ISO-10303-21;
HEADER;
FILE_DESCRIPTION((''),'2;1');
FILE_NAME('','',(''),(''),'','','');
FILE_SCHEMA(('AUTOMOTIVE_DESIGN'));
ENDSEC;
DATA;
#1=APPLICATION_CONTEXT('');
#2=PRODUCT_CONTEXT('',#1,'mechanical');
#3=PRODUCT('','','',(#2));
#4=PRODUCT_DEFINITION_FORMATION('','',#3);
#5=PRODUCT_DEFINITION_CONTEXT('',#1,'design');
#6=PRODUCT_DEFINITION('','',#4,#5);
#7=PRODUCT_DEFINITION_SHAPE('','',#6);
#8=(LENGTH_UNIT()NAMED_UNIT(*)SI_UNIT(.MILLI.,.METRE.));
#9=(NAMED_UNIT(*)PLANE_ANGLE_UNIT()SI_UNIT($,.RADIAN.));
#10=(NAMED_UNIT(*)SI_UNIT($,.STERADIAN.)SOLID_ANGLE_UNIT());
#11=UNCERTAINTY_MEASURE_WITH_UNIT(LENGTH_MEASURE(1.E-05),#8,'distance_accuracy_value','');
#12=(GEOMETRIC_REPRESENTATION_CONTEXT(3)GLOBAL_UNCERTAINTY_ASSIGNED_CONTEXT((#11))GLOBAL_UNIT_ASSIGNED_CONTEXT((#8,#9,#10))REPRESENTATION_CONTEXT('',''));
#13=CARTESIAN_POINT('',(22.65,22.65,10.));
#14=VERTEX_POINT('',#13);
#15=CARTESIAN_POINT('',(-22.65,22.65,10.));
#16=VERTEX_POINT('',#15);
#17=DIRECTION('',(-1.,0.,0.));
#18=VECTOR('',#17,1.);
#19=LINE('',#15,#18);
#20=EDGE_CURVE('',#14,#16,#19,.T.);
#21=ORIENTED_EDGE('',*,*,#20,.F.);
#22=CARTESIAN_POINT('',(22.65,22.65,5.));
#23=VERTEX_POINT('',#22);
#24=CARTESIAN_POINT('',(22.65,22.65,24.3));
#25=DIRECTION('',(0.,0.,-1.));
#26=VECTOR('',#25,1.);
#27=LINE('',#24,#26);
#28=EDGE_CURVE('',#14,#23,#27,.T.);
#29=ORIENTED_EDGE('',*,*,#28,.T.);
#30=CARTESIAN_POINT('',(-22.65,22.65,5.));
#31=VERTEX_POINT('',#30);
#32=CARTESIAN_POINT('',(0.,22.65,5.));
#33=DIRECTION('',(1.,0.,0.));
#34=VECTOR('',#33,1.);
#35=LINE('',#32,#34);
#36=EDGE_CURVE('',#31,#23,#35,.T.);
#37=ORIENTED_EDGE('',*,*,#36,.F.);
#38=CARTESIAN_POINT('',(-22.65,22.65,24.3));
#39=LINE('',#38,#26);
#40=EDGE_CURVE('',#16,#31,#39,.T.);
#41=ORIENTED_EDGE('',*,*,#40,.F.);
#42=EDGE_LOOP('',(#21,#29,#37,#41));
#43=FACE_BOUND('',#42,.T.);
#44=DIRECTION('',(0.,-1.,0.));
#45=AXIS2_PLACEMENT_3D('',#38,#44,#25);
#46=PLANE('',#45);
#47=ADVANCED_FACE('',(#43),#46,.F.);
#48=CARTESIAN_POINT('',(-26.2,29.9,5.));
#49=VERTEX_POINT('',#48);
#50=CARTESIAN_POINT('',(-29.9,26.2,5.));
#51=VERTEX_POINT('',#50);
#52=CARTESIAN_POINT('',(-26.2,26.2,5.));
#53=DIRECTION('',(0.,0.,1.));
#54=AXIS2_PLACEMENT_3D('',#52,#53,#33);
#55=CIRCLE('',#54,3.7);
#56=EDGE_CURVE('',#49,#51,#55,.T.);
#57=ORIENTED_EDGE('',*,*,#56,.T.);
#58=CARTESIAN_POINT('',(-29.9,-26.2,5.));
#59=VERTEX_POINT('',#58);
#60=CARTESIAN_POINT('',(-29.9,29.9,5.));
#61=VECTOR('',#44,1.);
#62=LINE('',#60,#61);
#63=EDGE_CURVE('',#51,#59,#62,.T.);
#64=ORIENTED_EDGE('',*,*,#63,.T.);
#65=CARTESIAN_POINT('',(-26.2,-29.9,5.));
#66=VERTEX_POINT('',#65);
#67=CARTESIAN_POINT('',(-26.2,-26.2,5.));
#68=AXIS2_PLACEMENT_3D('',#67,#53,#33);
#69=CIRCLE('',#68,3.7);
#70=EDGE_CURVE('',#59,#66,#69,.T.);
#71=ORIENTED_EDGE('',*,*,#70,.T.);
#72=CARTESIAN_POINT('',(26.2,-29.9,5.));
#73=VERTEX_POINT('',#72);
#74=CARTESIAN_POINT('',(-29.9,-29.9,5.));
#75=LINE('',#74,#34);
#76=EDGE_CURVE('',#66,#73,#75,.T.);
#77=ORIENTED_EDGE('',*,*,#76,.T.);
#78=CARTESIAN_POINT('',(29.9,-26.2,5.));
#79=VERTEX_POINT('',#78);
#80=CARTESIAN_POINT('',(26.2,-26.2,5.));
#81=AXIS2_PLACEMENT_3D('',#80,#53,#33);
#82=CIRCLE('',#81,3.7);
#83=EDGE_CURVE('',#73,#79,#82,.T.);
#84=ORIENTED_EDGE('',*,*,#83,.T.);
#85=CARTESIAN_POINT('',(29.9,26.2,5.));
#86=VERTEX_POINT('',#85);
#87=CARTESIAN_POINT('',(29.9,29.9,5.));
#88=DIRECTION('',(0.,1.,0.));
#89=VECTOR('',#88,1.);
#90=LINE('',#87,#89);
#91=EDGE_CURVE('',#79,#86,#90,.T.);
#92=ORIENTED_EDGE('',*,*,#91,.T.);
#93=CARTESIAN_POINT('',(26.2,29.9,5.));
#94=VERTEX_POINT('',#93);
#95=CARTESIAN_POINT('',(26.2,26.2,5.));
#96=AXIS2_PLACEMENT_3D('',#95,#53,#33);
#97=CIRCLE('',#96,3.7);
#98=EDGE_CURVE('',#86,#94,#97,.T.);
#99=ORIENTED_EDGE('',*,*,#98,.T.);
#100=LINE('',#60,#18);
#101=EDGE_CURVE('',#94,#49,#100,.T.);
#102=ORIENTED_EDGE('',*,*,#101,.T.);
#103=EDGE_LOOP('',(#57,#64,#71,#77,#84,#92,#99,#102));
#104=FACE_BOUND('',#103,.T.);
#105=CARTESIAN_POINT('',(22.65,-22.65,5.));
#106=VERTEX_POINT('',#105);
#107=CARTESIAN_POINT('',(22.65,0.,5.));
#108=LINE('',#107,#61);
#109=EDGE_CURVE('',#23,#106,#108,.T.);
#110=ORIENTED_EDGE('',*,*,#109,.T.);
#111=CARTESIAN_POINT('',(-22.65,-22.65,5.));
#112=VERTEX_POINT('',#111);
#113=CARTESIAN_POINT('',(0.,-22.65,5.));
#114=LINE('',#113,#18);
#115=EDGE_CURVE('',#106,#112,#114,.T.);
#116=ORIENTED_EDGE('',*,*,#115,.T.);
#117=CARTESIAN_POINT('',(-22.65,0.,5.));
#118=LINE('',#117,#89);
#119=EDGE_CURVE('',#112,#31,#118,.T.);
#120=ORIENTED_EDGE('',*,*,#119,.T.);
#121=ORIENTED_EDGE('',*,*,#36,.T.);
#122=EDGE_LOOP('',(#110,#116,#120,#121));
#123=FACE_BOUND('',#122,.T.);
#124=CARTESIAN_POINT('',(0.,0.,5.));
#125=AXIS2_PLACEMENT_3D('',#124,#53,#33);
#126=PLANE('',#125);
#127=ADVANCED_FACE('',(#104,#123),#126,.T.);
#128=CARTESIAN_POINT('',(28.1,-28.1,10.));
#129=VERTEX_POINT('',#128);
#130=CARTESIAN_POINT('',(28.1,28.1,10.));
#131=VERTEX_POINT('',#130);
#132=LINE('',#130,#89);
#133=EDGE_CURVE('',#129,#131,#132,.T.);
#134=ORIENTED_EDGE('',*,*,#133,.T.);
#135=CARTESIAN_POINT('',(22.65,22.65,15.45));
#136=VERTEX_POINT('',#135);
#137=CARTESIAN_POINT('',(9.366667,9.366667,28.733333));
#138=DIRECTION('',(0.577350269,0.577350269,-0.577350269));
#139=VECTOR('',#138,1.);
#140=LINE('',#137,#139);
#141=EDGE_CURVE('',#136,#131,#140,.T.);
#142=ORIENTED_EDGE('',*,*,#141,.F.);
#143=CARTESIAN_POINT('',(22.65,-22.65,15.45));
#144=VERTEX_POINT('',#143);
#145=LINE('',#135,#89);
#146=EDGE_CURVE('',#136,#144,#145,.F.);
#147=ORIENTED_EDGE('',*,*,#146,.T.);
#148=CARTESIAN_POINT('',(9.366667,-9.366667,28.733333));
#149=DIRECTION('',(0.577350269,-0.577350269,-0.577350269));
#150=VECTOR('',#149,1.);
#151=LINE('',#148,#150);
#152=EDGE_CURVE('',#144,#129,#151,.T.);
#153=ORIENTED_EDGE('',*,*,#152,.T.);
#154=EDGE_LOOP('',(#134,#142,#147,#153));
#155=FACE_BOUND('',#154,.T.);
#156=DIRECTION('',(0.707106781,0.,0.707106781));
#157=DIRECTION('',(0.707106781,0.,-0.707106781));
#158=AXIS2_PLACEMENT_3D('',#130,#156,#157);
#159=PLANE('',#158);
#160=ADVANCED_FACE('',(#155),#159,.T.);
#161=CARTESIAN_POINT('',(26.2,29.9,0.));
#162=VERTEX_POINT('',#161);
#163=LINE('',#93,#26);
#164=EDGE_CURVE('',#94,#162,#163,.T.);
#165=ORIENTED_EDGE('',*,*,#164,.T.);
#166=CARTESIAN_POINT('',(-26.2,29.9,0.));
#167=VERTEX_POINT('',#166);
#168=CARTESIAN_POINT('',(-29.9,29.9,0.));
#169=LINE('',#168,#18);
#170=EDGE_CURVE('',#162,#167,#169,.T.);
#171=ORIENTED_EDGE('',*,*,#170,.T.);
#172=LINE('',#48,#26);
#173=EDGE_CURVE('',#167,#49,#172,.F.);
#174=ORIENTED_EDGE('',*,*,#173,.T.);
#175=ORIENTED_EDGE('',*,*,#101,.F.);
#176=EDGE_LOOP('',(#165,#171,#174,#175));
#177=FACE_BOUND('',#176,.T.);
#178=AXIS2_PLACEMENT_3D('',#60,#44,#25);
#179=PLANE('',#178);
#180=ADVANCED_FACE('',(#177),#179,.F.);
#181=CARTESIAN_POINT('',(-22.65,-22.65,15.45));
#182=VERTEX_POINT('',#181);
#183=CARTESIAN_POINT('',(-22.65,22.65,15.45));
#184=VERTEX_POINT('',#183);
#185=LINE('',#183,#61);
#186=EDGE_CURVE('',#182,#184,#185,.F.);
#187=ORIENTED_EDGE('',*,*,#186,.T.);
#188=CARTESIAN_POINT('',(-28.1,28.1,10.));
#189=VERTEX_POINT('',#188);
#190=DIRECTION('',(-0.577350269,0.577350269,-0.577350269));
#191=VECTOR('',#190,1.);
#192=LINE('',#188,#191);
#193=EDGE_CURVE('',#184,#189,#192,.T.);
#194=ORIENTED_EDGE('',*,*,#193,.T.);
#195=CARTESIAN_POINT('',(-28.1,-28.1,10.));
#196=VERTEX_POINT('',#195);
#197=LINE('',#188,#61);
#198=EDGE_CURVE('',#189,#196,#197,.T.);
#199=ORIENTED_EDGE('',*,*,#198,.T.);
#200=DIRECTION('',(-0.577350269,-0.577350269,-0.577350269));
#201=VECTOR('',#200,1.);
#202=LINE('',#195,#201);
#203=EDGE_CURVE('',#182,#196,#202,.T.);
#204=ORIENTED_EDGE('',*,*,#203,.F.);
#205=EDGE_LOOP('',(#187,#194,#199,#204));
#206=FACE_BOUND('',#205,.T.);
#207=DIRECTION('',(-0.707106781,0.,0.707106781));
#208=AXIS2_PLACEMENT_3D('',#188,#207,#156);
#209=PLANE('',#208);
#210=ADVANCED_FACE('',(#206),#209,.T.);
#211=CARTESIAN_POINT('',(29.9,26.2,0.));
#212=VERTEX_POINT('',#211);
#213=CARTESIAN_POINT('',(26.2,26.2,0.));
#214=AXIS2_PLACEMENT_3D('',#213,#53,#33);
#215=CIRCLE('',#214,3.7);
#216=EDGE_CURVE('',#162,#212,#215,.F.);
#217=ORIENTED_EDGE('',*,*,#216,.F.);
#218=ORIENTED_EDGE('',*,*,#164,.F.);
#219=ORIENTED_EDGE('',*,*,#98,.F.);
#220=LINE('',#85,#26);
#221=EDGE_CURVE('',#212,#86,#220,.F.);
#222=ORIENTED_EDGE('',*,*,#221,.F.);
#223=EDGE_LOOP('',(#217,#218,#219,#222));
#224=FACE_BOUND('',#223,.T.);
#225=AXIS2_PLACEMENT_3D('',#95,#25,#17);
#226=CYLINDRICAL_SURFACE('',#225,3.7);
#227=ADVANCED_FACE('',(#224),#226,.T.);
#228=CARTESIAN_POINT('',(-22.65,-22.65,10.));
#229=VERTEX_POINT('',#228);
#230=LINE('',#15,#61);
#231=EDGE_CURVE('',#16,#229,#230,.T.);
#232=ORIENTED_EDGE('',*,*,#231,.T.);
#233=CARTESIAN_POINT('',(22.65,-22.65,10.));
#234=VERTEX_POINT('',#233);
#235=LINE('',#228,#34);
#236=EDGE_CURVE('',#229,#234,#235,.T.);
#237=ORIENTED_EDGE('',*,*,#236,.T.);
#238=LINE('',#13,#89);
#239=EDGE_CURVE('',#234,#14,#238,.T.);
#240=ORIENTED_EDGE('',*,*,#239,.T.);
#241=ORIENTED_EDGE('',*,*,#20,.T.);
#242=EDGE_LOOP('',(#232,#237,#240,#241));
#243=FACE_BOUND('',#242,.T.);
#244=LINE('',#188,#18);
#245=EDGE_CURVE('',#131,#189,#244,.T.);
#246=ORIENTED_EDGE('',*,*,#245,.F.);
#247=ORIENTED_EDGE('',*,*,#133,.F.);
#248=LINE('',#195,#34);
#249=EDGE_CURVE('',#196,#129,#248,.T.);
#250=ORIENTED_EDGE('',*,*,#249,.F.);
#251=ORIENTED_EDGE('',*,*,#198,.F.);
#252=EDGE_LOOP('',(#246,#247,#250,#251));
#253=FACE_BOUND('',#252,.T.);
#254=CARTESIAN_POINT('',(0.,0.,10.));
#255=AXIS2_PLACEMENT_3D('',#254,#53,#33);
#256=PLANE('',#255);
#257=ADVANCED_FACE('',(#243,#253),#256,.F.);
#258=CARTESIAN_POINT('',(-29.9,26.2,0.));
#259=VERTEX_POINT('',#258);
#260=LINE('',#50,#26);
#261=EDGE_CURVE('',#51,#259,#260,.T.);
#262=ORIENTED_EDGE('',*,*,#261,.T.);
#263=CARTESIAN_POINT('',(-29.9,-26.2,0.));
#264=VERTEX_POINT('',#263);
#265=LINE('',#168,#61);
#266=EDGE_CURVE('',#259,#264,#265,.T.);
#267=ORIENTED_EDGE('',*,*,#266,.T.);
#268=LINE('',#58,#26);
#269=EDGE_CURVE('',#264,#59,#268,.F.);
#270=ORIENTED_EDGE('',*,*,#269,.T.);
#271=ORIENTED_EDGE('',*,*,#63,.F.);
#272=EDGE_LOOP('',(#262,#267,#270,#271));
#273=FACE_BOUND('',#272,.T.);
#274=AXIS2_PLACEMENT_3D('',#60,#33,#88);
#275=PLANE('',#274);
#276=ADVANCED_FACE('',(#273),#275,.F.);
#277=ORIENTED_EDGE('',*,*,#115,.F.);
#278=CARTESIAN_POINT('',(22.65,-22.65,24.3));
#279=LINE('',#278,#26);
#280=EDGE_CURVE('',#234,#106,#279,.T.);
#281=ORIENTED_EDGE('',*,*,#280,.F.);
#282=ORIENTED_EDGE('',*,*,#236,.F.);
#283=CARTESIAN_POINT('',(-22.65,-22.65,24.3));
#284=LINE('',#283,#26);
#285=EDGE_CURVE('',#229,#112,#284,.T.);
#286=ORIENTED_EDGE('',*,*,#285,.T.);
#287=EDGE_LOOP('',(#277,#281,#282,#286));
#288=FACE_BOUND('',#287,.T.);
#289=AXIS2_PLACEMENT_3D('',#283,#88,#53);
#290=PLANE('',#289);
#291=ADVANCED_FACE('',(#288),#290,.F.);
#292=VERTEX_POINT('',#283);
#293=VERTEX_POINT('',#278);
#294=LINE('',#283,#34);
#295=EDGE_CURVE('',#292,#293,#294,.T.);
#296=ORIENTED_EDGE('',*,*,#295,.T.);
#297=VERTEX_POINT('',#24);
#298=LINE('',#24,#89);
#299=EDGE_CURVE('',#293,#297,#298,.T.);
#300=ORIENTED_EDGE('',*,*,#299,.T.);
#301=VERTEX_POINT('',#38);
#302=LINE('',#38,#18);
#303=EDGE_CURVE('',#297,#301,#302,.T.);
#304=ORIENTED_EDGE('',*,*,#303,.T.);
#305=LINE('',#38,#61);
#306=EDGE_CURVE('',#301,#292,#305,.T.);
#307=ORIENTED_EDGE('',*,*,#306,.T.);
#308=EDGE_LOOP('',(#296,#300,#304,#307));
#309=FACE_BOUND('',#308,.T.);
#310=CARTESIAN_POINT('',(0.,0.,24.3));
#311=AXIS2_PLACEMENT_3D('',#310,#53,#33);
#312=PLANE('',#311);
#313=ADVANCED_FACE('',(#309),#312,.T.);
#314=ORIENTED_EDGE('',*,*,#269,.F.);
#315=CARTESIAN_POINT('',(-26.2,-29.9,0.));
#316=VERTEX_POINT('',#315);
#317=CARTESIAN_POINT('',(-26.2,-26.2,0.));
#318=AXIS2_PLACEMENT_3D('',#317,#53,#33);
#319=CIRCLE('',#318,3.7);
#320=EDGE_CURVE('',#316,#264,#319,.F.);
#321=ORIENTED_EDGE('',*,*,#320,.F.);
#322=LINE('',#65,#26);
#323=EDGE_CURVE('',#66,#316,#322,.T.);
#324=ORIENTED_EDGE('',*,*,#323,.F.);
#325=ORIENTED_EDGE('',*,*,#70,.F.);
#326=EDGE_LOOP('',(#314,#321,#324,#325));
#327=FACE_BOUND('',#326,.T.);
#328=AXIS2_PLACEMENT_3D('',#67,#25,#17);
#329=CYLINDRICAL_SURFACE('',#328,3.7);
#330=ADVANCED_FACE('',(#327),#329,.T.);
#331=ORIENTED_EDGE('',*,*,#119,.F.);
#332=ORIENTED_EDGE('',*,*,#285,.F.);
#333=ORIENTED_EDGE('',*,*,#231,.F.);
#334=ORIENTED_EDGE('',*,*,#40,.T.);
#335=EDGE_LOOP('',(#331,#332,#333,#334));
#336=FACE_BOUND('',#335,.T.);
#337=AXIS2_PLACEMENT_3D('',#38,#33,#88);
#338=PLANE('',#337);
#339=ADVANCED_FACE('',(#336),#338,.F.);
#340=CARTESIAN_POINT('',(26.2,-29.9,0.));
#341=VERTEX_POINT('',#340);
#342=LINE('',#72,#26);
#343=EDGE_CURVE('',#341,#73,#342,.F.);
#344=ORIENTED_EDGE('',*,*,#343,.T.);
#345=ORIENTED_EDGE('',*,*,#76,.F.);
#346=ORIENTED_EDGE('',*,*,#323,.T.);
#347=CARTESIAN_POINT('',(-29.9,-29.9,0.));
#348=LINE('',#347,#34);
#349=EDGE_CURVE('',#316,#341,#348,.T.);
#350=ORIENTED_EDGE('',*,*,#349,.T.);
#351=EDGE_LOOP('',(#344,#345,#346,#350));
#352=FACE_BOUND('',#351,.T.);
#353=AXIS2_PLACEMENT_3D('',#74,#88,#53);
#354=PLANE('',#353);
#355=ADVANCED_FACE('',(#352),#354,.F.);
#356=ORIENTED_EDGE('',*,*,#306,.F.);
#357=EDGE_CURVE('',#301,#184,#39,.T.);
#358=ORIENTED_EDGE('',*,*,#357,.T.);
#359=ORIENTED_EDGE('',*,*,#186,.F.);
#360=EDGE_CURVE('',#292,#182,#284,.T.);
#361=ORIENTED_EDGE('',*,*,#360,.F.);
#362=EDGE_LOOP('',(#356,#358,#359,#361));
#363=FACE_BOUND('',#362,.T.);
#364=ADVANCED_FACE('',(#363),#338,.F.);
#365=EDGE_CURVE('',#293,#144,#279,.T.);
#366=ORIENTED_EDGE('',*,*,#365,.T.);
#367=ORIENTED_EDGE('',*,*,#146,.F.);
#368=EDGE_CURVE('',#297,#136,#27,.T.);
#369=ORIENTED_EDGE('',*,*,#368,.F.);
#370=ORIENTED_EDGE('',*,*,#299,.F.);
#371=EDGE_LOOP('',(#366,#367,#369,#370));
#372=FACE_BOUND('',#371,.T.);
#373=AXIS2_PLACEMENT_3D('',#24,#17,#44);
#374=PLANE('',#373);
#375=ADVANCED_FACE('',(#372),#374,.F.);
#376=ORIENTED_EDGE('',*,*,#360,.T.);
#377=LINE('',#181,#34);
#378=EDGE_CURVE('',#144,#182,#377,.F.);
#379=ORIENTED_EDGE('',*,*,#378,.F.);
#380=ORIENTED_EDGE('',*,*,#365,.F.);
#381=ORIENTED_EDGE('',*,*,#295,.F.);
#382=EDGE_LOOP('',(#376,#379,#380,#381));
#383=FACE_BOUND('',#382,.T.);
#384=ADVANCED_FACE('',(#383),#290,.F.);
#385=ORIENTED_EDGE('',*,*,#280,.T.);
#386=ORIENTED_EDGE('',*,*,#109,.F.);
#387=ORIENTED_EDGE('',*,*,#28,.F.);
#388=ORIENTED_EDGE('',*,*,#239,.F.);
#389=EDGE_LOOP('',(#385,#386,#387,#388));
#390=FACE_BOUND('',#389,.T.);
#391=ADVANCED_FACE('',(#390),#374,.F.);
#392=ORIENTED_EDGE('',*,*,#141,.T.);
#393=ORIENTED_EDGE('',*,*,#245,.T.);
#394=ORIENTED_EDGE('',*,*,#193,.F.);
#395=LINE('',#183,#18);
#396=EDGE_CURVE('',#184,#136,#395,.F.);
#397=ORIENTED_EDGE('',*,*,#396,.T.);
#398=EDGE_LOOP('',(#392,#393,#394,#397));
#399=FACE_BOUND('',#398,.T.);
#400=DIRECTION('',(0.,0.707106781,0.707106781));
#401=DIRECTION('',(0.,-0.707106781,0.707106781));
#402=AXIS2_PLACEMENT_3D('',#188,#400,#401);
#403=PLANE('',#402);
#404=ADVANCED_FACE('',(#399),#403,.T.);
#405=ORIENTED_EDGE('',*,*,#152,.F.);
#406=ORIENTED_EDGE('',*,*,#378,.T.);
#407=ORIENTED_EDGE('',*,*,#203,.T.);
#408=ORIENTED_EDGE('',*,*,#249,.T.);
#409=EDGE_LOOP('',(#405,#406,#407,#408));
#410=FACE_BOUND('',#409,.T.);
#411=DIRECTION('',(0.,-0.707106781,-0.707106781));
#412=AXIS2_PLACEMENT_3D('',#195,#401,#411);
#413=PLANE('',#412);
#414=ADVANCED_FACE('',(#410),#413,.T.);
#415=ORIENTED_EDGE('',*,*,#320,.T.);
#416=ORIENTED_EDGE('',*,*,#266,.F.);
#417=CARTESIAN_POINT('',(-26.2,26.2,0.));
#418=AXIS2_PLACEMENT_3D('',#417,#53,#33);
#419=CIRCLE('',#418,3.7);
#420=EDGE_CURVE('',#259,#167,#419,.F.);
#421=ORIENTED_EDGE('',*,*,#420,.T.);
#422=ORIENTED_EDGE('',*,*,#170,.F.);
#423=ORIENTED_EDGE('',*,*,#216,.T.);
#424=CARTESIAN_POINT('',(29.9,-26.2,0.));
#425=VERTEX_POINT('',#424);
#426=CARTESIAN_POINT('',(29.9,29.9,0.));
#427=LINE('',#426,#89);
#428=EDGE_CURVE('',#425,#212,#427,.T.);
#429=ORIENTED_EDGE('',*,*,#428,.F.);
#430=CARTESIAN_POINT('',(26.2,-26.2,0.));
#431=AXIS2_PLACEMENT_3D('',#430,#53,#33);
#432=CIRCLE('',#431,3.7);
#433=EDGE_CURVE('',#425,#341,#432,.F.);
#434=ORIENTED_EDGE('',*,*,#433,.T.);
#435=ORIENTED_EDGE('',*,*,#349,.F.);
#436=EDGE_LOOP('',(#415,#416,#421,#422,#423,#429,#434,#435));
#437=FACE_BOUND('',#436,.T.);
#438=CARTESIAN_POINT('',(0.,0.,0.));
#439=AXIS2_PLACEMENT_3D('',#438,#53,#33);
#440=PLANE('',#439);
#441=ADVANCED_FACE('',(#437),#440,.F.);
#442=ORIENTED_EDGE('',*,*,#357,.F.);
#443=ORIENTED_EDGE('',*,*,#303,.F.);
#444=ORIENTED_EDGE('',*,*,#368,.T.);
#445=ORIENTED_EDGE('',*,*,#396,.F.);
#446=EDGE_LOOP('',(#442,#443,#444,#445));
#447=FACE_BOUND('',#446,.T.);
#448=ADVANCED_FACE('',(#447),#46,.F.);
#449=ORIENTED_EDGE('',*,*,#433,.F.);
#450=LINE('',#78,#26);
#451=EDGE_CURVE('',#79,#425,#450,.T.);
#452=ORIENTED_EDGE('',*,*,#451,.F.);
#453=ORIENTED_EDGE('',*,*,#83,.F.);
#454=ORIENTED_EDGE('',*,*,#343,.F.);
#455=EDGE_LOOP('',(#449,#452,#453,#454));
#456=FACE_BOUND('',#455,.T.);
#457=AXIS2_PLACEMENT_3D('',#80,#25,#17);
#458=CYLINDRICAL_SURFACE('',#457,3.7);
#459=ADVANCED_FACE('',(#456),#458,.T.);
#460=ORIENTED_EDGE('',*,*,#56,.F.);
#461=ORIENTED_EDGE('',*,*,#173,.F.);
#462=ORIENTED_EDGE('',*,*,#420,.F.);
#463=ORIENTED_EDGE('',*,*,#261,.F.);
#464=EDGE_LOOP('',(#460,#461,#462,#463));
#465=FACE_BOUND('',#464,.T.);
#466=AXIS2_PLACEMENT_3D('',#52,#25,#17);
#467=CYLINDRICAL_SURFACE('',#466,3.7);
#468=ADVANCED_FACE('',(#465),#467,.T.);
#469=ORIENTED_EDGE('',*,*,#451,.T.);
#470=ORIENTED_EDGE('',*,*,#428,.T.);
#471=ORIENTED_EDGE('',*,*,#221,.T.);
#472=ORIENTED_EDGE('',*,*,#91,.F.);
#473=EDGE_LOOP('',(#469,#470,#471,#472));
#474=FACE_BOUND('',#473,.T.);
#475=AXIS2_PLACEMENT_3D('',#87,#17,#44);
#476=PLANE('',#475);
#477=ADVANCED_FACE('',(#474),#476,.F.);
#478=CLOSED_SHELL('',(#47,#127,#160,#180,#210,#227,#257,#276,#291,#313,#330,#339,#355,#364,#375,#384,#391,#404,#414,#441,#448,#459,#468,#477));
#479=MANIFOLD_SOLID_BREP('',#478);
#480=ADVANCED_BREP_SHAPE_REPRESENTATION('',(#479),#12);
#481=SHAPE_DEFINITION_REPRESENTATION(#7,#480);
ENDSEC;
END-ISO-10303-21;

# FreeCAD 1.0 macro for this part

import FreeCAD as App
import Part
import Sketcher
from FreeCAD import Vector
Q = App.Units.Quantity


def edges_at(feature, points):
    """Names of the edges that pass closest to the given points."""
    edges = feature.Shape.Edges
    near = lambda p: min(range(len(edges)), key=lambda i: edges[i].distToShape(Part.Vertex(*p))[0])
    return sorted({f"Edge{near(p) + 1}" for p in points})

doc = App.newDocument("Part")
body = doc.addObject("PartDesign::Body", "Body")

sketch1 = doc.addObject("Sketcher::SketchObject", "Sketch")
body.addObject(sketch1)
sketch1.AttachmentSupport = (doc.XY_Plane, [""])
sketch1.MapMode = "FlatFace"
sketch1.addGeometry([
    Part.LineSegment(Vector(-30, 30, 0), Vector(-30, -30, 0)),
    Part.LineSegment(Vector(-30, -30, 0), Vector(30, -30, 0)),
    Part.LineSegment(Vector(30, -30, 0), Vector(30, 30, 0)),
    Part.LineSegment(Vector(30, 30, 0), Vector(-30, 30, 0)),
], False)
sketch1.addConstraint([
    Sketcher.Constraint("Coincident", 0, 2, 1, 1),
    Sketcher.Constraint("Coincident", 1, 2, 2, 1),
    Sketcher.Constraint("Coincident", 2, 2, 3, 1),
    Sketcher.Constraint("Coincident", 3, 2, 0, 1),
    Sketcher.Constraint("Vertical", 0),
    Sketcher.Constraint("Horizontal", 1),
    Sketcher.Constraint("Vertical", 2),
    Sketcher.Constraint("Horizontal", 3),
    Sketcher.Constraint("Symmetric", 0, 2, 2, 2, -1, 1),
    Sketcher.Constraint("Equal", 3, 0),
    Sketcher.Constraint("DistanceX", 1, 1, 1, 2, Q("59.8 mm")),
])
pad1 = doc.addObject("PartDesign::Pad", "Pad")
body.addObject(pad1)
pad1.Profile = sketch1
pad1.Length = 5

sketch2 = doc.addObject("Sketcher::SketchObject", "Sketch001")
body.addObject(sketch2)
sketch2.AttachmentSupport = (doc.XY_Plane, [""])
sketch2.MapMode = "FlatFace"
sketch2.addGeometry([
    Part.LineSegment(Vector(-23, 23, 0), Vector(-23, -23, 0)),
    Part.LineSegment(Vector(-23, -23, 0), Vector(23, -23, 0)),
    Part.LineSegment(Vector(23, -23, 0), Vector(23, 23, 0)),
    Part.LineSegment(Vector(23, 23, 0), Vector(-23, 23, 0)),
], False)
sketch2.addConstraint([
    Sketcher.Constraint("Coincident", 0, 2, 1, 1),
    Sketcher.Constraint("Coincident", 1, 2, 2, 1),
    Sketcher.Constraint("Coincident", 2, 2, 3, 1),
    Sketcher.Constraint("Coincident", 3, 2, 0, 1),
    Sketcher.Constraint("Vertical", 0),
    Sketcher.Constraint("Horizontal", 1),
    Sketcher.Constraint("Vertical", 2),
    Sketcher.Constraint("Horizontal", 3),
    Sketcher.Constraint("Symmetric", 0, 2, 2, 2, -1, 1),
    Sketcher.Constraint("Equal", 3, 0),
    Sketcher.Constraint("DistanceX", 1, 1, 1, 2, Q("45.3 mm")),
])
pad2 = doc.addObject("PartDesign::Pad", "Pad001")
body.addObject(pad2)
pad2.Profile = sketch2
pad2.Length = 24.3
doc.recompute()

fillet = doc.addObject("PartDesign::Fillet", "Fillet")
body.addObject(fillet)
fillet.Base = (pad2, edges_at(pad2, [
    (29.9, -29.9, 2.5),
    (-29.9, -29.9, 2.5),
    (-29.9, 29.9, 2.5),
    (29.9, 29.9, 2.5),
]))
fillet.Radius = 3.7

sketch3 = doc.addObject("Sketcher::SketchObject", "Sketch002")
body.addObject(sketch3)
sketch3.AttachmentSupport = (doc.XY_Plane, [""])
sketch3.MapMode = "FlatFace"
sketch3.AttachmentOffset = App.Placement(Vector(0, 0, 10), App.Rotation())
sketch3.addGeometry([
    Part.LineSegment(Vector(-28, 28, 0), Vector(-28, -28, 0)),
    Part.LineSegment(Vector(-28, -28, 0), Vector(28, -28, 0)),
    Part.LineSegment(Vector(28, -28, 0), Vector(28, 28, 0)),
    Part.LineSegment(Vector(28, 28, 0), Vector(-28, 28, 0)),
], False)
sketch3.addConstraint([
    Sketcher.Constraint("Coincident", 0, 2, 1, 1),
    Sketcher.Constraint("Coincident", 1, 2, 2, 1),
    Sketcher.Constraint("Coincident", 2, 2, 3, 1),
    Sketcher.Constraint("Coincident", 3, 2, 0, 1),
    Sketcher.Constraint("Vertical", 0),
    Sketcher.Constraint("Horizontal", 1),
    Sketcher.Constraint("Vertical", 2),
    Sketcher.Constraint("Horizontal", 3),
    Sketcher.Constraint("Symmetric", 0, 2, 2, 2, -1, 1),
    Sketcher.Constraint("Equal", 3, 0),
    Sketcher.Constraint("DistanceX", 1, 1, 1, 2, Q("56.2 mm")),
])
pad3 = doc.addObject("PartDesign::Pad", "Pad002")
body.addObject(pad3)
pad3.Profile = sketch3
pad3.Length = 10
pad3.TaperAngle = -45

doc.recompute()
